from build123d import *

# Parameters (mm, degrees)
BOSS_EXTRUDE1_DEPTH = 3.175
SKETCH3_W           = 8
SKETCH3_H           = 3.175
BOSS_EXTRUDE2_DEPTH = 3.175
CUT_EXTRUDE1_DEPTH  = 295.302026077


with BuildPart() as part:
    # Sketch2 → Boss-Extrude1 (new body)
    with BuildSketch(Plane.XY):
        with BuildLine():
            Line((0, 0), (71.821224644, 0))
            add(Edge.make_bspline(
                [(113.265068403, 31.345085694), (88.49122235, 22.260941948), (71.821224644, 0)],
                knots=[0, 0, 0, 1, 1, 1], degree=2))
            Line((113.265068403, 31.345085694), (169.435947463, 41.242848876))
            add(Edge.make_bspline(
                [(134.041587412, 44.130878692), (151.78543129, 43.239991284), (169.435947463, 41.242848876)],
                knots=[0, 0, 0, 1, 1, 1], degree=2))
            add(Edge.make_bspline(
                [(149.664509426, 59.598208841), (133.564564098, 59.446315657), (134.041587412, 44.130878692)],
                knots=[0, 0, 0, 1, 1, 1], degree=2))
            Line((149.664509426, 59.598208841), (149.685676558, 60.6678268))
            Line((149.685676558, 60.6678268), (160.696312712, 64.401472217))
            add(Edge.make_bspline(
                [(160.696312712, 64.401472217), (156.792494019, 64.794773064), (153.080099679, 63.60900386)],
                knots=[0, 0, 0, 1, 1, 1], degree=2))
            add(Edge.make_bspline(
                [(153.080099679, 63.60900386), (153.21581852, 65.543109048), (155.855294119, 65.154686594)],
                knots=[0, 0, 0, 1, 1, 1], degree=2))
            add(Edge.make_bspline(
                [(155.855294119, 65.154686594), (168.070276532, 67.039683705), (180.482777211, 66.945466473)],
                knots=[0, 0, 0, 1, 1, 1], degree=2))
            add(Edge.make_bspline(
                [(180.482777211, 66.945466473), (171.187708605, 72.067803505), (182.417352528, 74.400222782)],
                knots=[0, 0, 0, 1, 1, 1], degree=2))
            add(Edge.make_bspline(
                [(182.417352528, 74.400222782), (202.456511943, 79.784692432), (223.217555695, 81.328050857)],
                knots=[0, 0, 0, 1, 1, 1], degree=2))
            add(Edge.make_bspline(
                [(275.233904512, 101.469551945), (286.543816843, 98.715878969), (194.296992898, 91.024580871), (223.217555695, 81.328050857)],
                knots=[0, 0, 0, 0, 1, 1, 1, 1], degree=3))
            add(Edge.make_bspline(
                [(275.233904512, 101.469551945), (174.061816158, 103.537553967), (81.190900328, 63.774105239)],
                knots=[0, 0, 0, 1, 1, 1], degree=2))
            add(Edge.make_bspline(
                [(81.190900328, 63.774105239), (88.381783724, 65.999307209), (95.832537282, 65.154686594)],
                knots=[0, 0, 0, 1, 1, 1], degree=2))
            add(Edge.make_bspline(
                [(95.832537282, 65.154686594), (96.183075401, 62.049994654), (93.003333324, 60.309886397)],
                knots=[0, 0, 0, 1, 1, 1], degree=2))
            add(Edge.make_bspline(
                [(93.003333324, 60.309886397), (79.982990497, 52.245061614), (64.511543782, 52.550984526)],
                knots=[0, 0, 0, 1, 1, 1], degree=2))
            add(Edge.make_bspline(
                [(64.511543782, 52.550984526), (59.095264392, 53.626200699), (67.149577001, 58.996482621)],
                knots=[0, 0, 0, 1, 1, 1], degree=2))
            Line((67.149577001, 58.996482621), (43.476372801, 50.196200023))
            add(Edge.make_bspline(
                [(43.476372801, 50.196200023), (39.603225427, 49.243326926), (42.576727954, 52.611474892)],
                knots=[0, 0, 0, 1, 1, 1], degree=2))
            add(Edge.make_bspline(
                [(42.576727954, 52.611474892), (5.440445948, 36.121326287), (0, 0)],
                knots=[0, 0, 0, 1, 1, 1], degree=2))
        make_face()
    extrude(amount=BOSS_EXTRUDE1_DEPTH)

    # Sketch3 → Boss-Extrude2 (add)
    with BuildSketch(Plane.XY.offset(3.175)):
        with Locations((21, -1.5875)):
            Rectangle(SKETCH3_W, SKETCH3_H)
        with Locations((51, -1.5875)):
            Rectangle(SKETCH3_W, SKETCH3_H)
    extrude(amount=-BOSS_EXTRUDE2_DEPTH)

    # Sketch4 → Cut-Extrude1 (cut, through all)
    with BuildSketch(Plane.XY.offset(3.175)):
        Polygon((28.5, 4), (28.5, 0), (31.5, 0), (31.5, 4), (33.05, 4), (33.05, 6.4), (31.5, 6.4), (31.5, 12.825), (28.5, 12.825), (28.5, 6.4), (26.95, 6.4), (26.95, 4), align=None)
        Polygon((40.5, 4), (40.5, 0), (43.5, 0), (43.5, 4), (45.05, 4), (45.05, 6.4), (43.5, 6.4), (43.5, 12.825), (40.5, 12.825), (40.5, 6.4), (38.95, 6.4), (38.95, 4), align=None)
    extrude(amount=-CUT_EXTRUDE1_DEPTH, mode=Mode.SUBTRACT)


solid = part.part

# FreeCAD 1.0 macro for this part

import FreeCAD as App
import Part
import Sketcher
from FreeCAD import Vector
Q = App.Units.Quantity


def add_polygon(sketch, points):
    """Adds a closed chain of lines whose ends are joined by coincident constraints."""
    first, n = sketch.GeometryCount, len(points)
    for a, b in zip(points, points[1:] + points[:1]):
        sketch.addGeometry(Part.LineSegment(App.Vector(*a, 0), App.Vector(*b, 0)), False)
    for i in range(n):
        sketch.addConstraint(Sketcher.Constraint("Coincident", first + i, 2, first + (i + 1) % n, 1))

doc = App.newDocument("Part")
body = doc.addObject("PartDesign::Body", "Body")

# Sketch on XY plane
sketch1 = body.newObject("Sketcher::SketchObject", "Sketch")
sketch1.AttachmentSupport = (doc.getObject("XY_Plane"), [""])
sketch1.MapMode = "FlatFace"
sketch1.addGeometry(Part.LineSegment(Vector(0, 0, 0), Vector(71.821225, 0, 0)), False)
sketch1.addGeometry(Part.BSplineCurve([Vector(113.265068, 31.345086, 0), Vector(88.491222, 22.260942, 0), Vector(71.821225, 0, 0)], [3, 3], [0, 1], False, 2, [1, 1, 1], False), False)
sketch1.addGeometry(Part.LineSegment(Vector(113.265068, 31.345086, 0), Vector(169.435947, 41.242849, 0)), False)
sketch1.addGeometry(Part.BSplineCurve([Vector(134.041587, 44.130879, 0), Vector(151.785431, 43.239991, 0), Vector(169.435947, 41.242849, 0)], [3, 3], [0, 1], False, 2, [1, 1, 1], False), False)
sketch1.addGeometry(Part.BSplineCurve([Vector(149.664509, 59.598209, 0), Vector(133.564564, 59.446316, 0), Vector(134.041587, 44.130879, 0)], [3, 3], [0, 1], False, 2, [1, 1, 1], False), False)
sketch1.addGeometry(Part.LineSegment(Vector(149.664509, 59.598209, 0), Vector(149.685677, 60.667827, 0)), False)
sketch1.addGeometry(Part.LineSegment(Vector(149.685677, 60.667827, 0), Vector(160.696313, 64.401472, 0)), False)
sketch1.addGeometry(Part.BSplineCurve([Vector(160.696313, 64.401472, 0), Vector(156.792494, 64.794773, 0), Vector(153.0801, 63.609004, 0)], [3, 3], [0, 1], False, 2, [1, 1, 1], False), False)
sketch1.addGeometry(Part.BSplineCurve([Vector(153.0801, 63.609004, 0), Vector(153.215819, 65.543109, 0), Vector(155.855294, 65.154687, 0)], [3, 3], [0, 1], False, 2, [1, 1, 1], False), False)
sketch1.addGeometry(Part.BSplineCurve([Vector(155.855294, 65.154687, 0), Vector(168.070277, 67.039684, 0), Vector(180.482777, 66.945466, 0)], [3, 3], [0, 1], False, 2, [1, 1, 1], False), False)
sketch1.addGeometry(Part.BSplineCurve([Vector(180.482777, 66.945466, 0), Vector(171.187709, 72.067804, 0), Vector(182.417353, 74.400223, 0)], [3, 3], [0, 1], False, 2, [1, 1, 1], False), False)
sketch1.addGeometry(Part.BSplineCurve([Vector(182.417353, 74.400223, 0), Vector(202.456512, 79.784692, 0), Vector(223.217556, 81.328051, 0)], [3, 3], [0, 1], False, 2, [1, 1, 1], False), False)
sketch1.addGeometry(Part.BSplineCurve([Vector(275.233905, 101.469552, 0), Vector(286.543817, 98.715879, 0), Vector(194.296993, 91.024581, 0), Vector(223.217556, 81.328051, 0)], [4, 4], [0, 1], False, 3, [1, 1, 1, 1], False), False)
sketch1.addGeometry(Part.BSplineCurve([Vector(275.233905, 101.469552, 0), Vector(174.061816, 103.537554, 0), Vector(81.1909, 63.774105, 0)], [3, 3], [0, 1], False, 2, [1, 1, 1], False), False)
sketch1.addGeometry(Part.BSplineCurve([Vector(81.1909, 63.774105, 0), Vector(88.381784, 65.999307, 0), Vector(95.832537, 65.154687, 0)], [3, 3], [0, 1], False, 2, [1, 1, 1], False), False)
sketch1.addGeometry(Part.BSplineCurve([Vector(95.832537, 65.154687, 0), Vector(96.183075, 62.049995, 0), Vector(93.003333, 60.309886, 0)], [3, 3], [0, 1], False, 2, [1, 1, 1], False), False)
sketch1.addGeometry(Part.BSplineCurve([Vector(93.003333, 60.309886, 0), Vector(79.98299, 52.245062, 0), Vector(64.511544, 52.550985, 0)], [3, 3], [0, 1], False, 2, [1, 1, 1], False), False)
sketch1.addGeometry(Part.BSplineCurve([Vector(64.511544, 52.550985, 0), Vector(59.095264, 53.626201, 0), Vector(67.149577, 58.996483, 0)], [3, 3], [0, 1], False, 2, [1, 1, 1], False), False)
sketch1.addGeometry(Part.LineSegment(Vector(67.149577, 58.996483, 0), Vector(43.476373, 50.1962, 0)), False)
sketch1.addGeometry(Part.BSplineCurve([Vector(43.476373, 50.1962, 0), Vector(39.603225, 49.243327, 0), Vector(42.576728, 52.611475, 0)], [3, 3], [0, 1], False, 2, [1, 1, 1], False), False)
sketch1.addGeometry(Part.BSplineCurve([Vector(42.576728, 52.611475, 0), Vector(5.440446, 36.121326, 0), Vector(0, 0, 0)], [3, 3], [0, 1], False, 2, [1, 1, 1], False), False)
sketch1.addConstraint(Sketcher.Constraint("Block", 1))
sketch1.addConstraint(Sketcher.Constraint("Block", 3))
sketch1.addConstraint(Sketcher.Constraint("Block", 4))
sketch1.addConstraint(Sketcher.Constraint("Block", 7))
sketch1.addConstraint(Sketcher.Constraint("Block", 8))
sketch1.addConstraint(Sketcher.Constraint("Block", 9))
sketch1.addConstraint(Sketcher.Constraint("Block", 10))
sketch1.addConstraint(Sketcher.Constraint("Block", 11))
sketch1.addConstraint(Sketcher.Constraint("Block", 12))
sketch1.addConstraint(Sketcher.Constraint("Block", 13))
sketch1.addConstraint(Sketcher.Constraint("Block", 14))
sketch1.addConstraint(Sketcher.Constraint("Block", 15))
sketch1.addConstraint(Sketcher.Constraint("Block", 16))
sketch1.addConstraint(Sketcher.Constraint("Block", 17))
sketch1.addConstraint(Sketcher.Constraint("Block", 19))
sketch1.addConstraint(Sketcher.Constraint("Block", 20))
sketch1.addConstraint(Sketcher.Constraint("Coincident", 0, 2, 1, 2))
sketch1.addConstraint(Sketcher.Constraint("Coincident", 1, 1, 2, 1))
sketch1.addConstraint(Sketcher.Constraint("Coincident", 2, 2, 3, 2))
sketch1.addConstraint(Sketcher.Constraint("Coincident", 4, 1, 5, 1))
sketch1.addConstraint(Sketcher.Constraint("Coincident", 5, 2, 6, 1))
sketch1.addConstraint(Sketcher.Constraint("Coincident", 6, 2, 7, 1))
sketch1.addConstraint(Sketcher.Constraint("Coincident", 17, 2, 18, 1))
sketch1.addConstraint(Sketcher.Constraint("Coincident", 18, 2, 19, 1))
sketch1.addConstraint(Sketcher.Constraint("Coincident", 20, 2, 0, 1))
sketch1.addConstraint(Sketcher.Constraint("DistanceX", 5, 2, 2, 2, Q("19.750271 mm")))
sketch1.addConstraint(Sketcher.Constraint("Distance", 5, Q("1.069827 mm")))
pad1 = body.newObject("PartDesign::Pad", "Pad")
pad1.Profile = sketch1
pad1.Length = 3.175

# Sketch on XY plane
sketch2 = body.newObject("Sketcher::SketchObject", "Sketch001")
sketch2.AttachmentSupport = (doc.getObject("XY_Plane"), [""])
sketch2.MapMode = "FlatFace"
sketch2.AttachmentOffset = App.Placement(Vector(0, 0, 3.175), App.Rotation())
add_polygon(sketch2, [(17, 0), (17, -3.175), (25, -3.175), (25, 0)])  # lines 0-3
add_polygon(sketch2, [(47, 0), (47, -3.175), (55, -3.175), (55, 0)])  # lines 4-7
sketch2.addConstraint(Sketcher.Constraint("Vertical", 0))
sketch2.addConstraint(Sketcher.Constraint("Horizontal", 1))
sketch2.addConstraint(Sketcher.Constraint("Vertical", 2))
sketch2.addConstraint(Sketcher.Constraint("Horizontal", 3))
sketch2.addConstraint(Sketcher.Constraint("Vertical", 4))
sketch2.addConstraint(Sketcher.Constraint("Horizontal", 5))
sketch2.addConstraint(Sketcher.Constraint("Vertical", 6))
sketch2.addConstraint(Sketcher.Constraint("Horizontal", 7))
sketch2.addConstraint(Sketcher.Constraint("PointOnObject", 2, 2, -1))
sketch2.addConstraint(Sketcher.Constraint("PointOnObject", 6, 2, -1))
sketch2.addConstraint(Sketcher.Constraint("Horizontal", 1, 2, 4, 2))
sketch2.addConstraint(Sketcher.Constraint("Equal", 3, 5))
sketch2.addConstraint(Sketcher.Constraint("DistanceX", 1, 1, 1, 2, Q("8 mm")))
sketch2.addConstraint(Sketcher.Constraint("DistanceX", -1, 1, 0, 2, Q("17 mm")))
sketch2.addConstraint(Sketcher.Constraint("DistanceX", -1, 1, 4, 2, Q("47 mm")))
sketch2.addConstraint(Sketcher.Constraint("DistanceY", 0, 2, 0, 1, Q("3.175 mm")))
pad2 = body.newObject("PartDesign::Pad", "Pad001")
pad2.Profile = sketch2
pad2.Length = 3.175
pad2.Reversed = True

# Sketch on XY plane
sketch3 = body.newObject("Sketcher::SketchObject", "Sketch002")
sketch3.AttachmentSupport = (doc.getObject("XY_Plane"), [""])
sketch3.MapMode = "FlatFace"
sketch3.AttachmentOffset = App.Placement(Vector(0, 0, 3.175), App.Rotation())
add_polygon(sketch3, [(28.5, 4), (28.5, 0), (31.5, 0), (31.5, 4), (33.05, 4), (33.05, 6.4), (31.5, 6.4), (31.5, 12.825), (28.5, 12.825), (28.5, 6.4), (26.95, 6.4), (26.95, 4)])  # lines 0-11
add_polygon(sketch3, [(40.5, 4), (40.5, 0), (43.5, 0), (43.5, 4), (45.05, 4), (45.05, 6.4), (43.5, 6.4), (43.5, 12.825), (40.5, 12.825), (40.5, 6.4), (38.95, 6.4), (38.95, 4)])  # lines 12-23
sketch3.addConstraint(Sketcher.Constraint("Vertical", 0))
sketch3.addConstraint(Sketcher.Constraint("Horizontal", 1))
sketch3.addConstraint(Sketcher.Constraint("Vertical", 2))
sketch3.addConstraint(Sketcher.Constraint("Horizontal", 3))
sketch3.addConstraint(Sketcher.Constraint("Vertical", 4))
sketch3.addConstraint(Sketcher.Constraint("Horizontal", 5))
sketch3.addConstraint(Sketcher.Constraint("Vertical", 6))
sketch3.addConstraint(Sketcher.Constraint("Horizontal", 7))
sketch3.addConstraint(Sketcher.Constraint("Vertical", 8))
sketch3.addConstraint(Sketcher.Constraint("Horizontal", 9))
sketch3.addConstraint(Sketcher.Constraint("Vertical", 10))
sketch3.addConstraint(Sketcher.Constraint("Horizontal", 11))
sketch3.addConstraint(Sketcher.Constraint("Vertical", 12))
sketch3.addConstraint(Sketcher.Constraint("Horizontal", 13))
sketch3.addConstraint(Sketcher.Constraint("Vertical", 14))
sketch3.addConstraint(Sketcher.Constraint("Horizontal", 15))
sketch3.addConstraint(Sketcher.Constraint("Vertical", 16))
sketch3.addConstraint(Sketcher.Constraint("Horizontal", 17))
sketch3.addConstraint(Sketcher.Constraint("Vertical", 18))
sketch3.addConstraint(Sketcher.Constraint("Horizontal", 19))
sketch3.addConstraint(Sketcher.Constraint("Vertical", 20))
sketch3.addConstraint(Sketcher.Constraint("Horizontal", 21))
sketch3.addConstraint(Sketcher.Constraint("Vertical", 22))
sketch3.addConstraint(Sketcher.Constraint("Horizontal", 23))
sketch3.addConstraint(Sketcher.Constraint("PointOnObject", 0, 2, -1))
sketch3.addConstraint(Sketcher.Constraint("PointOnObject", 12, 2, -1))
sketch3.addConstraint(Sketcher.Constraint("Horizontal", 5, 2, 8, 2))
sketch3.addConstraint(Sketcher.Constraint("Horizontal", 3, 2, 10, 2))
sketch3.addConstraint(Sketcher.Constraint("Horizontal", 11, 2, 14, 2))
sketch3.addConstraint(Sketcher.Constraint("Horizontal", 9, 2, 16, 2))
sketch3.addConstraint(Sketcher.Constraint("Horizontal", 7, 2, 18, 2))
sketch3.addConstraint(Sketcher.Constraint("Horizontal", 17, 2, 20, 2))
sketch3.addConstraint(Sketcher.Constraint("Horizontal", 15, 2, 22, 2))
sketch3.addConstraint(Sketcher.Constraint("Vertical", 2, 2, 5, 2))
sketch3.addConstraint(Sketcher.Constraint("Vertical", 0, 2, 7, 2))
sketch3.addConstraint(Sketcher.Constraint("Vertical", 14, 2, 17, 2))
sketch3.addConstraint(Sketcher.Constraint("Vertical", 12, 2, 19, 2))
sketch3.addConstraint(Sketcher.Constraint("Equal", 5, 9))
sketch3.addConstraint(Sketcher.Constraint("Equal", 7, 13))
sketch3.addConstraint(Sketcher.Constraint("Equal", 11, 15))
sketch3.addConstraint(Sketcher.Constraint("Equal", 17, 21))
sketch3.addConstraint(Sketcher.Constraint("DistanceX", 1, 1, 1, 2, Q("3 mm")))
sketch3.addConstraint(Sketcher.Constraint("DistanceY", 0, 2, 0, 1, Q("4 mm")))
sketch3.addConstraint(Sketcher.Constraint("DistanceY", 4, 1, 4, 2, Q("2.4 mm")))
sketch3.addConstraint(Sketcher.Constraint("DistanceX", 1, 2, 12, 2, Q("9 mm")))
sketch3.addConstraint(Sketcher.Constraint("DistanceX", 3, 1, 3, 2, Q("1.55 mm")))
sketch3.addConstraint(Sketcher.Constraint("DistanceX", -1, 1, 0, 2, Q("28.5 mm")))
sketch3.addConstraint(Sketcher.Constraint("DistanceY", 6, 1, 6, 2, Q("6.425 mm")))
pocket1 = body.newObject("PartDesign::Pocket", "Pocket")
pocket1.Profile = sketch3
pocket1.Type = "ThroughAll"

doc.recompute()
